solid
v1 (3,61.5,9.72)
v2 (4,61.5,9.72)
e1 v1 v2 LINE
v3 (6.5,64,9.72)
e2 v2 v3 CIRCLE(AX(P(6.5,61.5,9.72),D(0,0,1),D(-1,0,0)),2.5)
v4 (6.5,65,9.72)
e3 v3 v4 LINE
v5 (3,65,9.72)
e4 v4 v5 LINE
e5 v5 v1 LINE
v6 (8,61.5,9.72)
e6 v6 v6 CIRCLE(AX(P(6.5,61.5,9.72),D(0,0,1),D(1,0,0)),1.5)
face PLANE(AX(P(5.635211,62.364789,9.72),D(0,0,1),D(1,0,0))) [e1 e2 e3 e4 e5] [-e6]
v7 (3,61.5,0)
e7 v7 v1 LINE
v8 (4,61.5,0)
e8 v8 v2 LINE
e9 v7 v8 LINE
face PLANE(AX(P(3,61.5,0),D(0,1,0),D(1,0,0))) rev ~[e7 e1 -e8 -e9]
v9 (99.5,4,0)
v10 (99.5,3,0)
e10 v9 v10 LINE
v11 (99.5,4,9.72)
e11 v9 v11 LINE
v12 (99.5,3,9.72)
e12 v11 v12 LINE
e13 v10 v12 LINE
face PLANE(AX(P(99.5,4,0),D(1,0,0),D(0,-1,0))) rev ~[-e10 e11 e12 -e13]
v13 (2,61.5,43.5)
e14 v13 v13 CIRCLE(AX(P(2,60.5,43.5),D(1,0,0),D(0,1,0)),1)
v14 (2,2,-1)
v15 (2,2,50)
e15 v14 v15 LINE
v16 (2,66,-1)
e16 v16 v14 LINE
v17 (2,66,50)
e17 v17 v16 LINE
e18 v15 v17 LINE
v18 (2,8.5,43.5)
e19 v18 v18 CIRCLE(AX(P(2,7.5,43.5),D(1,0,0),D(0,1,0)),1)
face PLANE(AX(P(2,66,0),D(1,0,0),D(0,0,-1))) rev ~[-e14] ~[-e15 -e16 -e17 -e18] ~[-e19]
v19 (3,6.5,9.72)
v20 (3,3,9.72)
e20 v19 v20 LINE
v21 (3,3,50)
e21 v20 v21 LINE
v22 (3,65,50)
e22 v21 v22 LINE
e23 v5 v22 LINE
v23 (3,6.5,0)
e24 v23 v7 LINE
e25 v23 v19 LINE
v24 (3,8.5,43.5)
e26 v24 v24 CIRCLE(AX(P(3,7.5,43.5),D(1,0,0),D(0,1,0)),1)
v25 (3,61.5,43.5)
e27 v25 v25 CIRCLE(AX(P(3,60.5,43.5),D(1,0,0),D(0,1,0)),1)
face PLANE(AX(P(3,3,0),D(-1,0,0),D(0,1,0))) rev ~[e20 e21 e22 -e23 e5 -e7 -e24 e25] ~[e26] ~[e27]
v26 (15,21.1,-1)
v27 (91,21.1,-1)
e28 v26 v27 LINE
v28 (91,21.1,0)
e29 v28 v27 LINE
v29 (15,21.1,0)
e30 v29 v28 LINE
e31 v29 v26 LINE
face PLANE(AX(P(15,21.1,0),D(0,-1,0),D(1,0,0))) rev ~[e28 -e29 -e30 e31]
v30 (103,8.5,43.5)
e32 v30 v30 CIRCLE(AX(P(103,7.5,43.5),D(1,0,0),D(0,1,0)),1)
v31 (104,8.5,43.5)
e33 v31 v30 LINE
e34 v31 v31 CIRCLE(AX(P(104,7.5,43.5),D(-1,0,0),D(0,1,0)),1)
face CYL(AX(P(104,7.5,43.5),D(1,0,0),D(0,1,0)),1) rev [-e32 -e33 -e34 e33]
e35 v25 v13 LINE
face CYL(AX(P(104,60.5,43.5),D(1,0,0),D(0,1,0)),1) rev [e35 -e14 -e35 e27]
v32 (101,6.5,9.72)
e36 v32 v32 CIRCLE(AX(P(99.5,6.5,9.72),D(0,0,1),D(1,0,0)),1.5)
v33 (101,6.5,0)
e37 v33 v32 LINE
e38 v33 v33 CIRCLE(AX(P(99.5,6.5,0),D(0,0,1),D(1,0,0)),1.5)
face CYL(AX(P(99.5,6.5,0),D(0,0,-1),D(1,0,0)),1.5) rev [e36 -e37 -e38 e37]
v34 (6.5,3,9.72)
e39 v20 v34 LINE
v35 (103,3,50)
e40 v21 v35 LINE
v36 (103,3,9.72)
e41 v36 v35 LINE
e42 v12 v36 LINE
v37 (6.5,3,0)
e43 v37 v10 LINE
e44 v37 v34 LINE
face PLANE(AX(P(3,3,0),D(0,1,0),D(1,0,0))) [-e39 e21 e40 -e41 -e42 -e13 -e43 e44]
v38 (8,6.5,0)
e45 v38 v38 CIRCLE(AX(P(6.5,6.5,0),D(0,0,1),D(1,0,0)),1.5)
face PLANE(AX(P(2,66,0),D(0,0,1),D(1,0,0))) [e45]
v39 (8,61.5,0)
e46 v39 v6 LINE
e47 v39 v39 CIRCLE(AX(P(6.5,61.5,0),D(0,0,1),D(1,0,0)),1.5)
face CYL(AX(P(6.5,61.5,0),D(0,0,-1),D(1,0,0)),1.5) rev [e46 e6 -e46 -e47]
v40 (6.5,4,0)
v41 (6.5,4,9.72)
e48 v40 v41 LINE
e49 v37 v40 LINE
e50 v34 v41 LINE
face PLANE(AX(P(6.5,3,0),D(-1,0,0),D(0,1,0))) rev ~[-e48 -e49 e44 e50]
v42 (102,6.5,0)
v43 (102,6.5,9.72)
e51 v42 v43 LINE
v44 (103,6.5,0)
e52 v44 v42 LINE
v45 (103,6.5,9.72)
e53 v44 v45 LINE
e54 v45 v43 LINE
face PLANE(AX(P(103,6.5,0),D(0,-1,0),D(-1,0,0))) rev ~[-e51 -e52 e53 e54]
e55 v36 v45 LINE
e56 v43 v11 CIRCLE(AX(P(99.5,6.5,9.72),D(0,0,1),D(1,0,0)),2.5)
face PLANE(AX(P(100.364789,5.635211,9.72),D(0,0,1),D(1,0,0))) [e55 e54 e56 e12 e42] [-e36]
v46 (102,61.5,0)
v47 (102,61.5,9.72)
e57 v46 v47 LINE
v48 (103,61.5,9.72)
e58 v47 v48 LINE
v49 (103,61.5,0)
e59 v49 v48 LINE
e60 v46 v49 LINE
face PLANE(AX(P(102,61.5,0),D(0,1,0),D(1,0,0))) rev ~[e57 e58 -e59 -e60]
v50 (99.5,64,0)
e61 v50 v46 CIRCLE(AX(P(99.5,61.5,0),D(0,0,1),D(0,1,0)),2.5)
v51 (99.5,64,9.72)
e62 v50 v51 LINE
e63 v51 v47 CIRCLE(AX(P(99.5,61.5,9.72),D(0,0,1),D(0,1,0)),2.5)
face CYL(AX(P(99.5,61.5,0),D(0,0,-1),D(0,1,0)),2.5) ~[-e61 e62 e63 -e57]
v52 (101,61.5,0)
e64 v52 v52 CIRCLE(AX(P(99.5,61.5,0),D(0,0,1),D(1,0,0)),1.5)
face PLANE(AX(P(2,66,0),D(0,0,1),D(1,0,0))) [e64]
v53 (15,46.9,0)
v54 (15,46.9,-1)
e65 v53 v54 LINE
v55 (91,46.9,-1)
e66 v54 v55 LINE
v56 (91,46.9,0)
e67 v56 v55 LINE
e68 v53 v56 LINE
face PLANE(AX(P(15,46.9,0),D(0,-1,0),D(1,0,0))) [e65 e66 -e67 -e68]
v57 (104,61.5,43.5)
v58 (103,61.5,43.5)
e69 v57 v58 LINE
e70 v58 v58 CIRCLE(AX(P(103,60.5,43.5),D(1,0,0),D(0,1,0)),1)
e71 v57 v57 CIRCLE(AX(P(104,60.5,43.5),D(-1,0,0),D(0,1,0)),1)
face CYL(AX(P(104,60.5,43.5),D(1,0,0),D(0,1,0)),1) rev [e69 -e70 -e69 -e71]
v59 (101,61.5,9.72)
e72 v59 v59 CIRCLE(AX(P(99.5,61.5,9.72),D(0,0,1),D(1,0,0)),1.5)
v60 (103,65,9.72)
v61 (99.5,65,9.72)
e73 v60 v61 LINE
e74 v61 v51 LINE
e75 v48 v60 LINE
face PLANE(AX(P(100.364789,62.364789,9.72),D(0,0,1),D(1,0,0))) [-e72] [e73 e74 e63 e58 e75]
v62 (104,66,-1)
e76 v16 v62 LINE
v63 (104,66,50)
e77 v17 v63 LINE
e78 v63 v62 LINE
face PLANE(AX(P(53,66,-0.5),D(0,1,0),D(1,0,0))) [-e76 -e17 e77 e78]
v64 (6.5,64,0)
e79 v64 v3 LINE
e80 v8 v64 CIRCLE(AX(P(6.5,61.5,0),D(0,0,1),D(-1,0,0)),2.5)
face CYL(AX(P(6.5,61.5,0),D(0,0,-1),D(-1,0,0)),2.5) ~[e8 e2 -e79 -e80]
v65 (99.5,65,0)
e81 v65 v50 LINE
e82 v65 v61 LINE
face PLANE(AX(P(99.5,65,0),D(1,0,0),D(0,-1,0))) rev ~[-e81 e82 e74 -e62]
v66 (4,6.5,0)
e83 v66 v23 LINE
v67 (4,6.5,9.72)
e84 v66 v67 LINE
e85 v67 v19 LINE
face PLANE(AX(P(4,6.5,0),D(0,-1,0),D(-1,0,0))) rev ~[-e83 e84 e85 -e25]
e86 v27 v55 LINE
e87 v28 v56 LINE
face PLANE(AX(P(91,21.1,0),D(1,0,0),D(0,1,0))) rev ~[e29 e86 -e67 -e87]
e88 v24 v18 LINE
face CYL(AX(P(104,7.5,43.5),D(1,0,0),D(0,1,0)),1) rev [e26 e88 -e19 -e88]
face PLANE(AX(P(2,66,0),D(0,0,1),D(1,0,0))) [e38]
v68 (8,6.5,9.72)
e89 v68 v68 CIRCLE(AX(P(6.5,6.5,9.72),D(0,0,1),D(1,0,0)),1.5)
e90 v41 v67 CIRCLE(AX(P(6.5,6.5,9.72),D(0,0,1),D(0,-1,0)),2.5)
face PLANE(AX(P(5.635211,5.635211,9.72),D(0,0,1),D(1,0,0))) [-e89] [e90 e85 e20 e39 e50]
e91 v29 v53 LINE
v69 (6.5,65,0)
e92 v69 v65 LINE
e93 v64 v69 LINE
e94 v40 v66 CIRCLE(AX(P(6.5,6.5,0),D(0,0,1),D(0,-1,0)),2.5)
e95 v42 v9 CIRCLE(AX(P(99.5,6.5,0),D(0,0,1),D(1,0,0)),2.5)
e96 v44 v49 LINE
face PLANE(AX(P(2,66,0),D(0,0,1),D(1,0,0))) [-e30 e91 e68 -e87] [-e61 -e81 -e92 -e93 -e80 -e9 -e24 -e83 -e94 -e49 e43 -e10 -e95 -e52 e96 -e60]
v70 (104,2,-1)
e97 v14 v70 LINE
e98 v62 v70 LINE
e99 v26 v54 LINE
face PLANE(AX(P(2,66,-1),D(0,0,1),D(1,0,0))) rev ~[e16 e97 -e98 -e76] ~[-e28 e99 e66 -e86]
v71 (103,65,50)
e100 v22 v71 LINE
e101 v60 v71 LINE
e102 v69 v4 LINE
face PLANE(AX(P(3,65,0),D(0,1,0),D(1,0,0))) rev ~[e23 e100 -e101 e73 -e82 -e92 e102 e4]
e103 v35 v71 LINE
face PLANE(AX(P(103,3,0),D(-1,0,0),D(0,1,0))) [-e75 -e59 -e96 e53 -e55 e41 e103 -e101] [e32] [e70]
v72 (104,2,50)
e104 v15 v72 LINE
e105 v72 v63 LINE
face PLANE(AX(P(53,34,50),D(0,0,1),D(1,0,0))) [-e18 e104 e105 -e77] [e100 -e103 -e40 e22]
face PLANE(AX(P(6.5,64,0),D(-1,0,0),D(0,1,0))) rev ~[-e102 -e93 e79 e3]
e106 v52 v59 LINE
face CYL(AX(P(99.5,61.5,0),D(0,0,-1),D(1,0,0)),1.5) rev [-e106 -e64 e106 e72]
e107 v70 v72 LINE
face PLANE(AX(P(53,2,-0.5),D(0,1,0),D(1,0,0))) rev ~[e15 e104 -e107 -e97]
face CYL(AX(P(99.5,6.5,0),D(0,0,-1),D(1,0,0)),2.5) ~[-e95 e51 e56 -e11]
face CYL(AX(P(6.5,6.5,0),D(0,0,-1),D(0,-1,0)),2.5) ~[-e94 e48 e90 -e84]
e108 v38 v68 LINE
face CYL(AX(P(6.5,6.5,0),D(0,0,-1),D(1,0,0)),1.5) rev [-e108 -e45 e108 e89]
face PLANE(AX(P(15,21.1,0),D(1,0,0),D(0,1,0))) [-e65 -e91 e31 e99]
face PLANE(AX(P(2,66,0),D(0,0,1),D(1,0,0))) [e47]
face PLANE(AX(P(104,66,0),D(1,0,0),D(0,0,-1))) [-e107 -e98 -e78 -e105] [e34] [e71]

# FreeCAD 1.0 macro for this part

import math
import FreeCAD as App
import Part
import Sketcher

V = App.Vector

doc = App.newDocument("Part")
params = doc.addObject("Spreadsheet::Sheet", "Params")
for row, (alias, value) in enumerate([
    ("sketch1_width", "102 mm"),
    ("sketch1_width2", "100 mm"),
    ("sketch1_height", "64 mm"),
    ("sketch1_height2", "62 mm"),
    ("pad1_length", "50 mm"),
    ("sketch2_diameter", "3 mm"),
    ("sketch2_radius", "2.5 mm"),
    ("sketch2_width", "1 mm"),
    ("pad2_length", "9.72 mm"),
    ("sketch3_width", "102 mm"),
    ("sketch3_height", "1 mm"),
    ("pad3_length", "64 mm"),
    ("sketch4_width", "76 mm"),
    ("sketch4_height", "25.8 mm"),
    ("pocket1_length", "1 mm"),
    ("sketch5_diameter", "2 mm"),
], start=1):
    params.set(f"A{row}", alias)
    params.set(f"B{row}", "=" + value)
    params.setAlias(f"B{row}", alias)

body = doc.addObject("PartDesign::Body", "Body")

# Sketch on XY plane
sketch1 = doc.addObject("Sketcher::SketchObject", "Sketch")
body.addObject(sketch1)
sketch1.AttachmentSupport = (doc.XY_Plane, [""])
sketch1.MapMode = "FlatFace"
sketch1.addGeometry([
    Part.LineSegment(V(2, 66, 0), V(2, 2, 0)),  # 0
    Part.LineSegment(V(2, 2, 0), V(104, 2, 0)),  # 1
    Part.LineSegment(V(104, 2, 0), V(104, 66, 0)),  # 2
    Part.LineSegment(V(104, 66, 0), V(2, 66, 0)),  # 3
    Part.LineSegment(V(103, 3, 0), V(3, 3, 0)),  # 4
    Part.LineSegment(V(3, 3, 0), V(3, 65, 0)),  # 5
    Part.LineSegment(V(3, 65, 0), V(103, 65, 0)),  # 6
    Part.LineSegment(V(103, 65, 0), V(103, 3, 0)),  # 7
], False)
sketch1.addConstraint([
    Sketcher.Constraint("Coincident", 0, 2, 1, 1),
    Sketcher.Constraint("Coincident", 1, 2, 2, 1),
    Sketcher.Constraint("Coincident", 2, 2, 3, 1),
    Sketcher.Constraint("Coincident", 3, 2, 0, 1),
    Sketcher.Constraint("Coincident", 4, 2, 5, 1),
    Sketcher.Constraint("Coincident", 5, 2, 6, 1),
    Sketcher.Constraint("Coincident", 6, 2, 7, 1),
    Sketcher.Constraint("Coincident", 7, 2, 4, 1),
    Sketcher.Constraint("Vertical", 0),
    Sketcher.Constraint("Horizontal", 1),
    Sketcher.Constraint("Vertical", 2),
    Sketcher.Constraint("Horizontal", 3),
    Sketcher.Constraint("Horizontal", 4),
    Sketcher.Constraint("Vertical", 5),
    Sketcher.Constraint("Horizontal", 6),
    Sketcher.Constraint("Vertical", 7),
    Sketcher.Constraint("DistanceX", 1, 1, 1, 2, 102.0),
    Sketcher.Constraint("DistanceX", 4, 2, 4, 1, 100.0),
    Sketcher.Constraint("DistanceY", 0, 2, 0, 1, 64.0),
    Sketcher.Constraint("DistanceY", 5, 1, 5, 2, 62.0),
    Sketcher.Constraint("DistanceX", -1, 1, 0, 2, 2.0),
    Sketcher.Constraint("DistanceY", -1, 1, 0, 2, 2.0),
    Sketcher.Constraint("DistanceX", -1, 1, 4, 2, 3.0),
    Sketcher.Constraint("DistanceY", -1, 1, 4, 2, 3.0),
])
sketch1.setExpression("Constraints[16]", "Params.sketch1_width")
sketch1.setExpression("Constraints[17]", "Params.sketch1_width2")
sketch1.setExpression("Constraints[18]", "Params.sketch1_height")
sketch1.setExpression("Constraints[19]", "Params.sketch1_height2")
pad1 = doc.addObject("PartDesign::Pad", "Pad")
body.addObject(pad1)
pad1.Profile = sketch1
pad1.setExpression("Length", "Params.pad1_length")

# Sketch on XY plane
sketch2 = doc.addObject("Sketcher::SketchObject", "Sketch001")
body.addObject(sketch2)
sketch2.AttachmentSupport = (doc.XY_Plane, [""])
sketch2.MapMode = "FlatFace"
sketch2.addGeometry([
    Part.LineSegment(V(6.5, 65, 0), V(3, 65, 0)),  # 0
    Part.LineSegment(V(3, 65, 0), V(3, 61.5, 0)),  # 1
    Part.LineSegment(V(3, 61.5, 0), V(4, 61.5, 0)),  # 2
    Part.ArcOfCircle(Part.Circle(V(6.5, 61.5, 0), V(0, 0, 1), 2.5), math.radians(180), math.radians(450)),  # 3
    Part.LineSegment(V(6.5, 64, 0), V(6.5, 65, 0)),  # 4
    Part.Circle(V(6.5, 61.5, 0), V(0, 0, 1), 1.5),  # 5
    Part.LineSegment(V(103, 65, 0), V(99.5, 65, 0)),  # 6
    Part.LineSegment(V(99.5, 65, 0), V(99.5, 64, 0)),  # 7
    Part.ArcOfCircle(Part.Circle(V(99.5, 61.5, 0), V(0, 0, 1), 2.5), math.radians(90), math.radians(360)),  # 8
    Part.LineSegment(V(102, 61.5, 0), V(103, 61.5, 0)),  # 9
    Part.LineSegment(V(103, 61.5, 0), V(103, 65, 0)),  # 10
    Part.Circle(V(99.5, 61.5, 0), V(0, 0, 1), 1.5),  # 11
    Part.LineSegment(V(103, 3, 0), V(103, 6.5, 0)),  # 12
    Part.LineSegment(V(103, 6.5, 0), V(102, 6.5, 0)),  # 13
    Part.ArcOfCircle(Part.Circle(V(99.5, 6.5, 0), V(0, 0, 1), 2.5), math.radians(0), math.radians(270)),  # 14
    Part.LineSegment(V(99.5, 4, 0), V(99.5, 3, 0)),  # 15
    Part.LineSegment(V(99.5, 3, 0), V(103, 3, 0)),  # 16
    Part.Circle(V(99.5, 6.5, 0), V(0, 0, 1), 1.5),  # 17
    Part.LineSegment(V(4, 6.5, 0), V(3, 6.5, 0)),  # 18
    Part.LineSegment(V(3, 6.5, 0), V(3, 3, 0)),  # 19
    Part.LineSegment(V(3, 3, 0), V(6.5, 3, 0)),  # 20
    Part.LineSegment(V(6.5, 3, 0), V(6.5, 4, 0)),  # 21
    Part.ArcOfCircle(Part.Circle(V(6.5, 6.5, 0), V(0, 0, 1), 2.5), math.radians(-90), math.radians(180)),  # 22
    Part.Circle(V(6.5, 6.5, 0), V(0, 0, 1), 1.5),  # 23
], False)
sketch2.addConstraint([
    Sketcher.Constraint("Coincident", 0, 2, 1, 1),
    Sketcher.Constraint("Coincident", 1, 2, 2, 1),
    Sketcher.Constraint("Coincident", 2, 2, 3, 1),
    Sketcher.Constraint("Coincident", 3, 2, 4, 1),
    Sketcher.Constraint("Coincident", 4, 2, 0, 1),
    Sketcher.Constraint("Coincident", 6, 2, 7, 1),
    Sketcher.Constraint("Coincident", 7, 2, 8, 1),
    Sketcher.Constraint("Coincident", 8, 2, 9, 1),
    Sketcher.Constraint("Coincident", 9, 2, 10, 1),
    Sketcher.Constraint("Coincident", 10, 2, 6, 1),
    Sketcher.Constraint("Coincident", 12, 2, 13, 1),
    Sketcher.Constraint("Coincident", 13, 2, 14, 1),
    Sketcher.Constraint("Coincident", 14, 2, 15, 1),
    Sketcher.Constraint("Coincident", 15, 2, 16, 1),
    Sketcher.Constraint("Coincident", 16, 2, 12, 1),
    Sketcher.Constraint("Coincident", 18, 2, 19, 1),
    Sketcher.Constraint("Coincident", 19, 2, 20, 1),
    Sketcher.Constraint("Coincident", 20, 2, 21, 1),
    Sketcher.Constraint("Coincident", 21, 2, 22, 1),
    Sketcher.Constraint("Coincident", 22, 2, 18, 1),
    Sketcher.Constraint("Horizontal", 0),
    Sketcher.Constraint("Vertical", 1),
    Sketcher.Constraint("Horizontal", 2),
    Sketcher.Constraint("Vertical", 4),
    Sketcher.Constraint("Horizontal", 6),
    Sketcher.Constraint("Vertical", 7),
    Sketcher.Constraint("Horizontal", 9),
    Sketcher.Constraint("Vertical", 10),
    Sketcher.Constraint("Vertical", 12),
    Sketcher.Constraint("Horizontal", 13),
    Sketcher.Constraint("Vertical", 15),
    Sketcher.Constraint("Horizontal", 16),
    Sketcher.Constraint("Horizontal", 18),
    Sketcher.Constraint("Vertical", 19),
    Sketcher.Constraint("Horizontal", 20),
    Sketcher.Constraint("Vertical", 21),
    Sketcher.Constraint("Coincident", 5, 3, 3, 3),
    Sketcher.Constraint("Coincident", 11, 3, 8, 3),
    Sketcher.Constraint("Coincident", 17, 3, 14, 3),
    Sketcher.Constraint("Coincident", 23, 3, 22, 3),
    Sketcher.Constraint("Equal", 3, 8),
    Sketcher.Constraint("Equal", 5, 11),
    Sketcher.Constraint("Equal", 8, 14),
    Sketcher.Constraint("Equal", 11, 17),
    Sketcher.Constraint("Equal", 14, 22),
    Sketcher.Constraint("Equal", 17, 23),
    Sketcher.Constraint("Horizontal", 5, 3, 8, 3),
    Sketcher.Constraint("Horizontal", 17, 3, 22, 3),
    Sketcher.Constraint("Horizontal", 11, 3, 1, 2),
    Sketcher.Constraint("Horizontal", 4, 2, 6, 2),
    Sketcher.Constraint("Horizontal", 2, 2, 8, 2),
    Sketcher.Constraint("Horizontal", 23, 3, 12, 2),
    Sketcher.Constraint("Horizontal", 13, 2, 18, 2),
    Sketcher.Constraint("Horizontal", 16, 2, 19, 2),
    Sketcher.Constraint("Vertical", 11, 3, 14, 3),
    Sketcher.Constraint("Vertical", 5, 3, 22, 3),
    Sketcher.Constraint("Vertical", 23, 3, 3, 2),
    Sketcher.Constraint("Vertical", 17, 3, 6, 2),
    Sketcher.Constraint("Vertical", 10, 2, 12, 2),
    Sketcher.Constraint("Vertical", 7, 2, 14, 2),
    Sketcher.Constraint("Vertical", 1, 2, 18, 2),
    Sketcher.Constraint("Vertical", 4, 2, 20, 2),
    Sketcher.Constraint("Equal", 0, 6),
    Sketcher.Constraint("Equal", 20, 1),
    Sketcher.Constraint("Equal", 10, 12),
    Sketcher.Constraint("Diameter", 5, 3.0),
    Sketcher.Constraint("Radius", 3, 2.5),
    Sketcher.Constraint("DistanceX", 2, 1, 2, 2, 1.0),
    Sketcher.Constraint("DistanceX", -1, 1, 0, 2, 3.0),
    Sketcher.Constraint("DistanceY", -1, 1, 0, 2, 65.0),
    Sketcher.Constraint("DistanceX", -1, 1, 8, 2, 102.0),
    Sketcher.Constraint("DistanceY", -1, 1, 14, 2, 4.0),
])
sketch2.setExpression("Constraints[65]", "Params.sketch2_diameter")
sketch2.setExpression("Constraints[66]", "Params.sketch2_radius")
sketch2.setExpression("Constraints[67]", "Params.sketch2_width")
pad2 = doc.addObject("PartDesign::Pad", "Pad001")
body.addObject(pad2)
pad2.Profile = sketch2
pad2.setExpression("Length", "Params.pad2_length")

# Sketch on XZ plane
sketch3 = doc.addObject("Sketcher::SketchObject", "Sketch002")
body.addObject(sketch3)
sketch3.AttachmentSupport = (doc.XZ_Plane, [""])
sketch3.MapMode = "FlatFace"
sketch3.AttachmentOffset = App.Placement(V(0, 0, -66), App.Rotation())
sketch3.addGeometry([
    Part.LineSegment(V(2, -1, 0), V(2, 0, 0)),
    Part.LineSegment(V(2, 0, 0), V(104, 0, 0)),
    Part.LineSegment(V(104, 0, 0), V(104, -1, 0)),
    Part.LineSegment(V(104, -1, 0), V(2, -1, 0)),
], False)
sketch3.addConstraint([
    Sketcher.Constraint("Coincident", 0, 2, 1, 1),
    Sketcher.Constraint("Coincident", 1, 2, 2, 1),
    Sketcher.Constraint("Coincident", 2, 2, 3, 1),
    Sketcher.Constraint("Coincident", 3, 2, 0, 1),
    Sketcher.Constraint("Vertical", 0),
    Sketcher.Constraint("Horizontal", 1),
    Sketcher.Constraint("Vertical", 2),
    Sketcher.Constraint("Horizontal", 3),
    Sketcher.Constraint("PointOnObject", 0, 2, -1),
    Sketcher.Constraint("DistanceX", 1, 1, 1, 2, 102.0),
    Sketcher.Constraint("DistanceY", 0, 1, 0, 2, 1.0),
    Sketcher.Constraint("DistanceX", -1, 1, 0, 2, 2.0),
])
sketch3.setExpression("Constraints[9]", "Params.sketch3_width")
sketch3.setExpression("Constraints[10]", "Params.sketch3_height")
pad3 = doc.addObject("PartDesign::Pad", "Pad002")
body.addObject(pad3)
pad3.Profile = sketch3
pad3.setExpression("Length", "Params.pad3_length")

# Sketch on XY plane
sketch4 = doc.addObject("Sketcher::SketchObject", "Sketch003")
body.addObject(sketch4)
sketch4.AttachmentSupport = (doc.XY_Plane, [""])
sketch4.MapMode = "FlatFace"
sketch4.addGeometry([
    Part.LineSegment(V(15, 46.9, 0), V(15, 21.1, 0)),
    Part.LineSegment(V(15, 21.1, 0), V(91, 21.1, 0)),
    Part.LineSegment(V(91, 21.1, 0), V(91, 46.9, 0)),
    Part.LineSegment(V(91, 46.9, 0), V(15, 46.9, 0)),
], False)
sketch4.addConstraint([
    Sketcher.Constraint("Coincident", 0, 2, 1, 1),
    Sketcher.Constraint("Coincident", 1, 2, 2, 1),
    Sketcher.Constraint("Coincident", 2, 2, 3, 1),
    Sketcher.Constraint("Coincident", 3, 2, 0, 1),
    Sketcher.Constraint("Vertical", 0),
    Sketcher.Constraint("Horizontal", 1),
    Sketcher.Constraint("Vertical", 2),
    Sketcher.Constraint("Horizontal", 3),
    Sketcher.Constraint("DistanceX", 1, 1, 1, 2, 76.0),
    Sketcher.Constraint("DistanceY", 0, 2, 0, 1, 25.8),
    Sketcher.Constraint("DistanceX", -1, 1, 0, 2, 15.0),
    Sketcher.Constraint("DistanceY", -1, 1, 0, 2, 21.1),
])
sketch4.setExpression("Constraints[8]", "Params.sketch4_width")
sketch4.setExpression("Constraints[9]", "Params.sketch4_height")
pocket1 = doc.addObject("PartDesign::Pocket", "Pocket")
body.addObject(pocket1)
pocket1.Profile = sketch4
pocket1.setExpression("Length", "Params.pocket1_length")

# Sketch on YZ plane
sketch5 = doc.addObject("Sketcher::SketchObject", "Sketch004")
body.addObject(sketch5)
sketch5.AttachmentSupport = (doc.YZ_Plane, [""])
sketch5.MapMode = "FlatFace"
sketch5.AttachmentOffset = App.Placement(V(0, 0, 103), App.Rotation())
sketch5.addGeometry([
    Part.Circle(V(7.5, 43.5, 0), V(0, 0, 1), 1),
    Part.Circle(V(60.5, 43.5, 0), V(0, 0, 1), 1),
], False)
sketch5.addConstraint([
    Sketcher.Constraint("Equal", 0, 1),
    Sketcher.Constraint("Horizontal", 0, 3, 1, 3),
    Sketcher.Constraint("Diameter", 0, 2.0),
    Sketcher.Constraint("DistanceX", 0, 3, 1, 3, 53.0),
    Sketcher.Constraint("DistanceX", -1, 1, 0, 3, 7.5),
    Sketcher.Constraint("DistanceY", -1, 1, 0, 3, 43.5),
])
sketch5.setExpression("Constraints[2]", "Params.sketch5_diameter")
pocket2 = doc.addObject("PartDesign::Pocket", "Pocket001")
body.addObject(pocket2)
pocket2.Profile = sketch5
pocket2.Type = "ThroughAll"
pocket2.Midplane = True

doc.recompute()
